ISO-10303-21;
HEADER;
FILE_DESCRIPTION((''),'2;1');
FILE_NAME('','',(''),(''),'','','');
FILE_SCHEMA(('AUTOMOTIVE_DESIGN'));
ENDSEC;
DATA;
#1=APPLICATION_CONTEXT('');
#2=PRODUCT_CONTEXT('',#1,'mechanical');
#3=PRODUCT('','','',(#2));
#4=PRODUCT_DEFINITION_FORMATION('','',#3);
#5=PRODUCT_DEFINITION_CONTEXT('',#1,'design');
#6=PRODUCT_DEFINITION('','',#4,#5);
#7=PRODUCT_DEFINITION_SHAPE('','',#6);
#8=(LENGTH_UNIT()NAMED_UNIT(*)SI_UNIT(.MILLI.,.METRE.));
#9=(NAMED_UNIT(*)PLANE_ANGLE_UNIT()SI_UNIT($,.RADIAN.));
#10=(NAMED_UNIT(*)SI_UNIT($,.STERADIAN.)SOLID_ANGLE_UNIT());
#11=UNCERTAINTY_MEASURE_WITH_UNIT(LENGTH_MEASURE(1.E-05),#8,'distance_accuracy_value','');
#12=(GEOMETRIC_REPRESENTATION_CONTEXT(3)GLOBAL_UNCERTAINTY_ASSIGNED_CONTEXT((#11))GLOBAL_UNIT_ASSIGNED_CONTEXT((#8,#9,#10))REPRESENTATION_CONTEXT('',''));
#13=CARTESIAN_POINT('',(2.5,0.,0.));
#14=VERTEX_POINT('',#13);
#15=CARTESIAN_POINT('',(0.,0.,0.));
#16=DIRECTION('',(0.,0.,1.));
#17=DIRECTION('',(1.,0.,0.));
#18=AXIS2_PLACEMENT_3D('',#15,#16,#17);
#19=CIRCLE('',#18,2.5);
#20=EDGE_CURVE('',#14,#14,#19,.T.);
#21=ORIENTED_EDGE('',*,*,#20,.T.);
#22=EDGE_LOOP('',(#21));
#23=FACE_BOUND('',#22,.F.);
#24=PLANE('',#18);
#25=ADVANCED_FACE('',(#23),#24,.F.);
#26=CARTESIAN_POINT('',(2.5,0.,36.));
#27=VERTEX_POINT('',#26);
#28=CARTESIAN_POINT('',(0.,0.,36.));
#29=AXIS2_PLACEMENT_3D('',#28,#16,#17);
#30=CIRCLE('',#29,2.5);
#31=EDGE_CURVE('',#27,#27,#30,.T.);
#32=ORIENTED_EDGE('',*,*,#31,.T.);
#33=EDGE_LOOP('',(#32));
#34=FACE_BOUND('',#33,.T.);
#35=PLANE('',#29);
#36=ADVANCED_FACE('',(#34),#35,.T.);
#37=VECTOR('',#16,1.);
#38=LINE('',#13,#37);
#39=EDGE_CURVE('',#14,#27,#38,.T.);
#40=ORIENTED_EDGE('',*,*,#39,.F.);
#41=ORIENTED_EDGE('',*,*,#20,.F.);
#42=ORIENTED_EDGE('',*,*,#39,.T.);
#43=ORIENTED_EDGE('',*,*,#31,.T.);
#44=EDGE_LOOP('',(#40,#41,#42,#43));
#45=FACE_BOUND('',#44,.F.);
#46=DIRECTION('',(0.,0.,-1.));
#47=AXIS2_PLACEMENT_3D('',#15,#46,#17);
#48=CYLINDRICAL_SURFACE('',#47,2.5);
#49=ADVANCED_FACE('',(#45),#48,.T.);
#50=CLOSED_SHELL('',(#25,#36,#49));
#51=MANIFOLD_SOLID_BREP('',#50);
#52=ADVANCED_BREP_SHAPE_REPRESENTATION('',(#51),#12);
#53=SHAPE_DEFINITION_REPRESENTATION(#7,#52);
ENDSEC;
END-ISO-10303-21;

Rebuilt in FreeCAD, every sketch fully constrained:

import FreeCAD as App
import Part
import Sketcher

doc = App.newDocument("Part")
body = doc.addObject("PartDesign::Body", "Body")

# Sketch on XY plane
sketch1 = body.newObject("Sketcher::SketchObject", "Sketch")
sketch1.AttachmentSupport = (doc.getObject("XY_Plane"), [""])
sketch1.MapMode = "FlatFace"
sketch1.addGeometry(Part.Circle(App.Vector(0, 0, 0), App.Vector(0, 0, 1), 2.5), False)
sketch1.addConstraint([
    Sketcher.Constraint("Coincident", 0, 3, -1, 1),
    Sketcher.Constraint("Diameter", 0, 5.0),
])
pad1 = body.newObject("PartDesign::Pad", "Pad")
pad1.Profile = sketch1
pad1.Length = 36

doc.recompute()
